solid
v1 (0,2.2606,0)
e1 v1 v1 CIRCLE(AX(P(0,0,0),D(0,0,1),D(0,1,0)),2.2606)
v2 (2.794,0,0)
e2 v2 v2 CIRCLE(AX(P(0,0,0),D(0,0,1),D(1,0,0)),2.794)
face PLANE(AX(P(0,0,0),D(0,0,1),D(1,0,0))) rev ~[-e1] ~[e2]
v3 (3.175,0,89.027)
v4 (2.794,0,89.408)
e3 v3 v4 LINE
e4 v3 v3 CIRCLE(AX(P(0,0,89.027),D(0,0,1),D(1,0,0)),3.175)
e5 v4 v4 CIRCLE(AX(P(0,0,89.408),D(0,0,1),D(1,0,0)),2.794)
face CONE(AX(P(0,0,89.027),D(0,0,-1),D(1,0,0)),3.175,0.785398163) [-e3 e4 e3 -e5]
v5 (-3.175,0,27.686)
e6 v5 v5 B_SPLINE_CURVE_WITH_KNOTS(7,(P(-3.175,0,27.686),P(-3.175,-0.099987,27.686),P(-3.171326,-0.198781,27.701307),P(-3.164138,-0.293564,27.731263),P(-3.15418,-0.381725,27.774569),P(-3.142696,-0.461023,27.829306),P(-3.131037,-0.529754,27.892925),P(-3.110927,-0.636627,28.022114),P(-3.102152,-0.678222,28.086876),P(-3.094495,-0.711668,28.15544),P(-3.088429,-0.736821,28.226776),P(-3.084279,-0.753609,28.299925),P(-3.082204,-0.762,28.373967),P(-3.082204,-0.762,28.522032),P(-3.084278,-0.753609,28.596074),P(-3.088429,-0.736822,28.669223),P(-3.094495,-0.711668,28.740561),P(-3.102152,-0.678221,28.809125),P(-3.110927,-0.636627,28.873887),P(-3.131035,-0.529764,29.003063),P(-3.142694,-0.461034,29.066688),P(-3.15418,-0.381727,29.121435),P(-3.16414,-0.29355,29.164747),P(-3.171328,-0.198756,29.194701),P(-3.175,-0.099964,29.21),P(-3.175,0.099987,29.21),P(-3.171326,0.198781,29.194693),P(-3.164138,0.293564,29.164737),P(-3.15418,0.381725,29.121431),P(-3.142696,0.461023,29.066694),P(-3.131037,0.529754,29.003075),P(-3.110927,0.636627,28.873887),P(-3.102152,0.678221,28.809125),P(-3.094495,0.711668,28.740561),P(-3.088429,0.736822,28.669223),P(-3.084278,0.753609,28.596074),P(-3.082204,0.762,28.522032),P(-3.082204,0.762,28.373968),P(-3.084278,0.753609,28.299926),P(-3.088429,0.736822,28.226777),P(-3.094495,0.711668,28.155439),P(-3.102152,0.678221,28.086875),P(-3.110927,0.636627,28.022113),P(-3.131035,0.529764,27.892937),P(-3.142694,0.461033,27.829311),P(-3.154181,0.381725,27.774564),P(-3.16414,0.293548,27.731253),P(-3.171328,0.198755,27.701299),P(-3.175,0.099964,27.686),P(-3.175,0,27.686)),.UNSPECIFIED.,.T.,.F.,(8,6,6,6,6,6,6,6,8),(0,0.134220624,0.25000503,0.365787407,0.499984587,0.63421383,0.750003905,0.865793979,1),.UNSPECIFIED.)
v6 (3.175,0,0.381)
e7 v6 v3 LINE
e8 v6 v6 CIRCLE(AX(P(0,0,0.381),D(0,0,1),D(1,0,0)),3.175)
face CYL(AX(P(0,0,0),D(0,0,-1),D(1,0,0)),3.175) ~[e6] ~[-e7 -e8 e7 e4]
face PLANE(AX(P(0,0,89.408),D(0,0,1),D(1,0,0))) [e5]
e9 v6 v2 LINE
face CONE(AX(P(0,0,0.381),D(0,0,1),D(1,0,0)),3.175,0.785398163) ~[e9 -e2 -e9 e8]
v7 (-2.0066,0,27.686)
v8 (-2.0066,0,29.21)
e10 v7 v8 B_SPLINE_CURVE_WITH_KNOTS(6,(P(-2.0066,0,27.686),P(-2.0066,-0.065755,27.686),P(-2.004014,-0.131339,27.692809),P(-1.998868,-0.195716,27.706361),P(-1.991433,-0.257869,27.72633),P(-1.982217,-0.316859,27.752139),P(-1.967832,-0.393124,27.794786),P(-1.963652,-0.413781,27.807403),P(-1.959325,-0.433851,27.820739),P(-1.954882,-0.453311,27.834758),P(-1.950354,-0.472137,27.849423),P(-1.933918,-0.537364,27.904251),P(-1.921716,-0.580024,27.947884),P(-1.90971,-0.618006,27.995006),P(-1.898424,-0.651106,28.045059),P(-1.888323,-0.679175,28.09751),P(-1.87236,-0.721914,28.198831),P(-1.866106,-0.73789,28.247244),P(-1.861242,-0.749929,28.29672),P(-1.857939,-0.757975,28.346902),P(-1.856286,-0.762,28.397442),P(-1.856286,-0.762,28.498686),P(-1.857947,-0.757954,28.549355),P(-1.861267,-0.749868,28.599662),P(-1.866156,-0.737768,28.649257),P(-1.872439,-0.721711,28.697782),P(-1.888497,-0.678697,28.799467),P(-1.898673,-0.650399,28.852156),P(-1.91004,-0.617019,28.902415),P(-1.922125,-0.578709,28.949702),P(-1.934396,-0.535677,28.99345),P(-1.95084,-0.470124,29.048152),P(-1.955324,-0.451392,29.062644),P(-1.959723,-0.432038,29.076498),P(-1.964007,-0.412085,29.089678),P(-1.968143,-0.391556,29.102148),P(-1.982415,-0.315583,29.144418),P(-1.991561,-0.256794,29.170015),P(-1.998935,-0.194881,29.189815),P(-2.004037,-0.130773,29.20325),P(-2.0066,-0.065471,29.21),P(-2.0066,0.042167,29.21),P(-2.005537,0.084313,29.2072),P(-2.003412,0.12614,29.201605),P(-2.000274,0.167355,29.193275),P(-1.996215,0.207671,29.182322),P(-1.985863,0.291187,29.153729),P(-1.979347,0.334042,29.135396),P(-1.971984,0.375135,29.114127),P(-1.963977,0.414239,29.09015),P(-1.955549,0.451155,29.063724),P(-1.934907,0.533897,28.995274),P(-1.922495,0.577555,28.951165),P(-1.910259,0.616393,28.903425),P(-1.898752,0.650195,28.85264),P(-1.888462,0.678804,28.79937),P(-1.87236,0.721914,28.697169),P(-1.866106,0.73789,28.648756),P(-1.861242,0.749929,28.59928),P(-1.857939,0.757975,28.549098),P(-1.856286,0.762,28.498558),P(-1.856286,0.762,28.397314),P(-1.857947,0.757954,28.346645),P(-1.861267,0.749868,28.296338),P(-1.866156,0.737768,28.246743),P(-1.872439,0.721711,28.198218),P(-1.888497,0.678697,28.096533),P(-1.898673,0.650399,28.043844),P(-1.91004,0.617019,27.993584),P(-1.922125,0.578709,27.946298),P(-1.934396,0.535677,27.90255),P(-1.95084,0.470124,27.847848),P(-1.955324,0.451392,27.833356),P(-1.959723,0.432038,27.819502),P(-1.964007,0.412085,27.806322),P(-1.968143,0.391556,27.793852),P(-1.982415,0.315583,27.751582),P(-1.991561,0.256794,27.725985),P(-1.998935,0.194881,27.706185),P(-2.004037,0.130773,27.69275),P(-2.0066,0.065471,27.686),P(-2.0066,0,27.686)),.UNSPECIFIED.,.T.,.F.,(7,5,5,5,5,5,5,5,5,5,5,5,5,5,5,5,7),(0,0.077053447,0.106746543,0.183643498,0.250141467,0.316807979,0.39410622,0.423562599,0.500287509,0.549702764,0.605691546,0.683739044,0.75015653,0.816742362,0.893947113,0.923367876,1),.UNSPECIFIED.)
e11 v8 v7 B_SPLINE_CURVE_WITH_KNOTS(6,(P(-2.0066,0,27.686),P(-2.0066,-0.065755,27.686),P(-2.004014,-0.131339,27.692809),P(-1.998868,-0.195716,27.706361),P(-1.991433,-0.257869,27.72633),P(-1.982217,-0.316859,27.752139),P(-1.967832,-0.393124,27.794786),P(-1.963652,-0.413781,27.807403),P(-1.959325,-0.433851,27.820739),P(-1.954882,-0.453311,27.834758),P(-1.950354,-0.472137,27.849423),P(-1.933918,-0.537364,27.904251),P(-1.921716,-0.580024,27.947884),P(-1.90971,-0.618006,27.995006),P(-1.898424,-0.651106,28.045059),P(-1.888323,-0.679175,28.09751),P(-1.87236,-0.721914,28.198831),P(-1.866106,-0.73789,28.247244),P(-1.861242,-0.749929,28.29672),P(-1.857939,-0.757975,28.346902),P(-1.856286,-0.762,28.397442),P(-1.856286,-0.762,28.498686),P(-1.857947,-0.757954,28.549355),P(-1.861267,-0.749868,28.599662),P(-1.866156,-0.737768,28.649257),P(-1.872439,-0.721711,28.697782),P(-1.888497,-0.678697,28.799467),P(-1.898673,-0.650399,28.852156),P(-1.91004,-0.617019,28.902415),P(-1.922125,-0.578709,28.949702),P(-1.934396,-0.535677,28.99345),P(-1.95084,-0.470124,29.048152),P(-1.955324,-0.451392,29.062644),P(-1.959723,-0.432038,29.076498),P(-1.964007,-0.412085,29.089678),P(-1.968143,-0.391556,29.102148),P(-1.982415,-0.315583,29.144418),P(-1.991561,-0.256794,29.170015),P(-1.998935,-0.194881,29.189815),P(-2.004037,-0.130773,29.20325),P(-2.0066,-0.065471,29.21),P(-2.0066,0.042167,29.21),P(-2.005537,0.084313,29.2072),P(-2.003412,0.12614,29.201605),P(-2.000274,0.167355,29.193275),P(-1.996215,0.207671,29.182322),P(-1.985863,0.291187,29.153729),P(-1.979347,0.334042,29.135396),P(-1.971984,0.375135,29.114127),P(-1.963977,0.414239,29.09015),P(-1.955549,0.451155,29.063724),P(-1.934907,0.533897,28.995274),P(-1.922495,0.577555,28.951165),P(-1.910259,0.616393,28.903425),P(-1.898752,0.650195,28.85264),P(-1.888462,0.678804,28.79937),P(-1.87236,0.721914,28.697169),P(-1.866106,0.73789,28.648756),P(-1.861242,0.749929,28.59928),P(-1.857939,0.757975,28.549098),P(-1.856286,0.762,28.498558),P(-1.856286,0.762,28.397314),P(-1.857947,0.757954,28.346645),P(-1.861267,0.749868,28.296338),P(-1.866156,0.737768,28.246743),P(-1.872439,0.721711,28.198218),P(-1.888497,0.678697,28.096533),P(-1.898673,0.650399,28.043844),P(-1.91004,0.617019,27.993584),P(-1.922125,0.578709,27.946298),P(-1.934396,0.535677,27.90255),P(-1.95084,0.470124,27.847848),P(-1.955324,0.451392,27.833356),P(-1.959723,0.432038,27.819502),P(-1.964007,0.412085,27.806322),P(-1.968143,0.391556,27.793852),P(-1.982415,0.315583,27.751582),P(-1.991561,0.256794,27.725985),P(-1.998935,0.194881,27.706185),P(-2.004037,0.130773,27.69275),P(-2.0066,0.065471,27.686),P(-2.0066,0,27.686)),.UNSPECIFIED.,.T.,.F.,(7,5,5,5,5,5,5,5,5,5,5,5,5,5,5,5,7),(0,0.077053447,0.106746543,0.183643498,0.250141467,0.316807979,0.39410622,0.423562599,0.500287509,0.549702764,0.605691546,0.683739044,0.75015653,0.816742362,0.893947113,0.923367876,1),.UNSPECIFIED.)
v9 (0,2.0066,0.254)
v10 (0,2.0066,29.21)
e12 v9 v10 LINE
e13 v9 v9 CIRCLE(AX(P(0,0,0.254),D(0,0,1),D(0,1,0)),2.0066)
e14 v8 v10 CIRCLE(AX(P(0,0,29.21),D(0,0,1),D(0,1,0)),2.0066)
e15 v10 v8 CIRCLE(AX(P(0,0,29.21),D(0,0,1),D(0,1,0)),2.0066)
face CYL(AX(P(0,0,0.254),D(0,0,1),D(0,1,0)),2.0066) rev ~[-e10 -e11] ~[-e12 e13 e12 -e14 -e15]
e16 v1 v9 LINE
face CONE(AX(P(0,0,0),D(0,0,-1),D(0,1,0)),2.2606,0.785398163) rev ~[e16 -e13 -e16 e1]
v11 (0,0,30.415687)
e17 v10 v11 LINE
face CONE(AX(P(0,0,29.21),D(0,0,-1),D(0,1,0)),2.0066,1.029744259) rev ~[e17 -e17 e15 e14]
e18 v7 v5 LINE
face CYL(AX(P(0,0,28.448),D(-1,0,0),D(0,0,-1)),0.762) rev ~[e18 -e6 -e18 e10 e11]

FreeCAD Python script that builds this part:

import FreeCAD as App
import Part
import Sketcher

V = App.Vector
Q = App.Units.Quantity


def edges_at(feature, points):
    """Names of the edges that pass closest to the given points."""
    edges = feature.Shape.Edges
    near = lambda p: min(range(len(edges)), key=lambda i: edges[i].distToShape(Part.Vertex(*p))[0])
    return sorted({f"Edge{near(p) + 1}" for p in points})

doc = App.newDocument("Part")
body = doc.addObject("PartDesign::Body", "Body")

sketch1 = body.newObject("Sketcher::SketchObject", "Sketch")
sketch1.AttachmentSupport = (doc.getObject("XY_Plane"), [""])
sketch1.MapMode = "FlatFace"
sketch1.addGeometry(Part.Circle(V(0, 0, 0), V(0, 0, 1), 3.175), False)
sketch1.addConstraint(Sketcher.Constraint("Coincident", 0, 3, -1, 1))
sketch1.addConstraint(Sketcher.Constraint("Diameter", 0, Q("0.25 in")))
pad1 = body.newObject("PartDesign::Pad", "Pad")
pad1.Profile = sketch1
pad1.Length = Q("3.52 in")

sketch2 = body.newObject("Sketcher::SketchObject", "Sketch001")
sketch2.AttachmentSupport = (doc.getObject("XY_Plane"), [""])
sketch2.MapMode = "FlatFace"
sketch2.addGeometry(Part.Circle(V(0, 0, 0), V(0, 0, 1), 2.0066), False)
sketch2.addConstraint(Sketcher.Constraint("Coincident", 0, 3, -1, 1))
sketch2.addConstraint(Sketcher.Constraint("Diameter", 0, Q("0.158 in")))
doc.recompute()
hole = body.newObject("PartDesign::Hole", "Hole")
hole.Profile = sketch2
hole.ThreadType = "None"
hole.Diameter = Q("0.158 in")
hole.DepthType = "Dimension"
hole.Depth = Q("1.15 in")
hole.DrillPoint = "Angled"
hole.DrillPointAngle = 118
hole.HoleCutType = "Countersink"
hole.HoleCutDiameter = Q("0.178 in")
hole.HoleCutCountersinkAngle = 90
hole.Reversed = True
doc.recompute()

chamfer = body.newObject("PartDesign::Chamfer", "Chamfer")
chamfer.Base = (hole, edges_at(hole, [(-3.175, 0, 89.408), (-3.175, 0, 0)]))
chamfer.Size = Q("0.015 in")

sketch3 = body.newObject("Sketcher::SketchObject", "Sketch002")
sketch3.AttachmentSupport = (doc.getObject("YZ_Plane"), [""])
sketch3.MapMode = "FlatFace"
sketch3.addGeometry(Part.Circle(V(0, 28.448, 0), V(0, 0, 1), 0.762), False)
sketch3.addConstraint(Sketcher.Constraint("PointOnObject", 0, 3, -2))
sketch3.addConstraint(Sketcher.Constraint("Diameter", 0, Q("0.06 in")))
sketch3.addConstraint(Sketcher.Constraint("DistanceY", -1, 1, 0, 3, Q("1.12 in")))
doc.recompute()
hole2 = body.newObject("PartDesign::Hole", "Hole001")
hole2.Profile = sketch3
hole2.ThreadType = "None"
hole2.Diameter = Q("0.06 in")
hole2.DepthType = "Dimension"
hole2.Depth = Q("0.15 in")
hole2.DrillPoint = "Angled"
hole2.DrillPointAngle = 118

doc.recompute()
